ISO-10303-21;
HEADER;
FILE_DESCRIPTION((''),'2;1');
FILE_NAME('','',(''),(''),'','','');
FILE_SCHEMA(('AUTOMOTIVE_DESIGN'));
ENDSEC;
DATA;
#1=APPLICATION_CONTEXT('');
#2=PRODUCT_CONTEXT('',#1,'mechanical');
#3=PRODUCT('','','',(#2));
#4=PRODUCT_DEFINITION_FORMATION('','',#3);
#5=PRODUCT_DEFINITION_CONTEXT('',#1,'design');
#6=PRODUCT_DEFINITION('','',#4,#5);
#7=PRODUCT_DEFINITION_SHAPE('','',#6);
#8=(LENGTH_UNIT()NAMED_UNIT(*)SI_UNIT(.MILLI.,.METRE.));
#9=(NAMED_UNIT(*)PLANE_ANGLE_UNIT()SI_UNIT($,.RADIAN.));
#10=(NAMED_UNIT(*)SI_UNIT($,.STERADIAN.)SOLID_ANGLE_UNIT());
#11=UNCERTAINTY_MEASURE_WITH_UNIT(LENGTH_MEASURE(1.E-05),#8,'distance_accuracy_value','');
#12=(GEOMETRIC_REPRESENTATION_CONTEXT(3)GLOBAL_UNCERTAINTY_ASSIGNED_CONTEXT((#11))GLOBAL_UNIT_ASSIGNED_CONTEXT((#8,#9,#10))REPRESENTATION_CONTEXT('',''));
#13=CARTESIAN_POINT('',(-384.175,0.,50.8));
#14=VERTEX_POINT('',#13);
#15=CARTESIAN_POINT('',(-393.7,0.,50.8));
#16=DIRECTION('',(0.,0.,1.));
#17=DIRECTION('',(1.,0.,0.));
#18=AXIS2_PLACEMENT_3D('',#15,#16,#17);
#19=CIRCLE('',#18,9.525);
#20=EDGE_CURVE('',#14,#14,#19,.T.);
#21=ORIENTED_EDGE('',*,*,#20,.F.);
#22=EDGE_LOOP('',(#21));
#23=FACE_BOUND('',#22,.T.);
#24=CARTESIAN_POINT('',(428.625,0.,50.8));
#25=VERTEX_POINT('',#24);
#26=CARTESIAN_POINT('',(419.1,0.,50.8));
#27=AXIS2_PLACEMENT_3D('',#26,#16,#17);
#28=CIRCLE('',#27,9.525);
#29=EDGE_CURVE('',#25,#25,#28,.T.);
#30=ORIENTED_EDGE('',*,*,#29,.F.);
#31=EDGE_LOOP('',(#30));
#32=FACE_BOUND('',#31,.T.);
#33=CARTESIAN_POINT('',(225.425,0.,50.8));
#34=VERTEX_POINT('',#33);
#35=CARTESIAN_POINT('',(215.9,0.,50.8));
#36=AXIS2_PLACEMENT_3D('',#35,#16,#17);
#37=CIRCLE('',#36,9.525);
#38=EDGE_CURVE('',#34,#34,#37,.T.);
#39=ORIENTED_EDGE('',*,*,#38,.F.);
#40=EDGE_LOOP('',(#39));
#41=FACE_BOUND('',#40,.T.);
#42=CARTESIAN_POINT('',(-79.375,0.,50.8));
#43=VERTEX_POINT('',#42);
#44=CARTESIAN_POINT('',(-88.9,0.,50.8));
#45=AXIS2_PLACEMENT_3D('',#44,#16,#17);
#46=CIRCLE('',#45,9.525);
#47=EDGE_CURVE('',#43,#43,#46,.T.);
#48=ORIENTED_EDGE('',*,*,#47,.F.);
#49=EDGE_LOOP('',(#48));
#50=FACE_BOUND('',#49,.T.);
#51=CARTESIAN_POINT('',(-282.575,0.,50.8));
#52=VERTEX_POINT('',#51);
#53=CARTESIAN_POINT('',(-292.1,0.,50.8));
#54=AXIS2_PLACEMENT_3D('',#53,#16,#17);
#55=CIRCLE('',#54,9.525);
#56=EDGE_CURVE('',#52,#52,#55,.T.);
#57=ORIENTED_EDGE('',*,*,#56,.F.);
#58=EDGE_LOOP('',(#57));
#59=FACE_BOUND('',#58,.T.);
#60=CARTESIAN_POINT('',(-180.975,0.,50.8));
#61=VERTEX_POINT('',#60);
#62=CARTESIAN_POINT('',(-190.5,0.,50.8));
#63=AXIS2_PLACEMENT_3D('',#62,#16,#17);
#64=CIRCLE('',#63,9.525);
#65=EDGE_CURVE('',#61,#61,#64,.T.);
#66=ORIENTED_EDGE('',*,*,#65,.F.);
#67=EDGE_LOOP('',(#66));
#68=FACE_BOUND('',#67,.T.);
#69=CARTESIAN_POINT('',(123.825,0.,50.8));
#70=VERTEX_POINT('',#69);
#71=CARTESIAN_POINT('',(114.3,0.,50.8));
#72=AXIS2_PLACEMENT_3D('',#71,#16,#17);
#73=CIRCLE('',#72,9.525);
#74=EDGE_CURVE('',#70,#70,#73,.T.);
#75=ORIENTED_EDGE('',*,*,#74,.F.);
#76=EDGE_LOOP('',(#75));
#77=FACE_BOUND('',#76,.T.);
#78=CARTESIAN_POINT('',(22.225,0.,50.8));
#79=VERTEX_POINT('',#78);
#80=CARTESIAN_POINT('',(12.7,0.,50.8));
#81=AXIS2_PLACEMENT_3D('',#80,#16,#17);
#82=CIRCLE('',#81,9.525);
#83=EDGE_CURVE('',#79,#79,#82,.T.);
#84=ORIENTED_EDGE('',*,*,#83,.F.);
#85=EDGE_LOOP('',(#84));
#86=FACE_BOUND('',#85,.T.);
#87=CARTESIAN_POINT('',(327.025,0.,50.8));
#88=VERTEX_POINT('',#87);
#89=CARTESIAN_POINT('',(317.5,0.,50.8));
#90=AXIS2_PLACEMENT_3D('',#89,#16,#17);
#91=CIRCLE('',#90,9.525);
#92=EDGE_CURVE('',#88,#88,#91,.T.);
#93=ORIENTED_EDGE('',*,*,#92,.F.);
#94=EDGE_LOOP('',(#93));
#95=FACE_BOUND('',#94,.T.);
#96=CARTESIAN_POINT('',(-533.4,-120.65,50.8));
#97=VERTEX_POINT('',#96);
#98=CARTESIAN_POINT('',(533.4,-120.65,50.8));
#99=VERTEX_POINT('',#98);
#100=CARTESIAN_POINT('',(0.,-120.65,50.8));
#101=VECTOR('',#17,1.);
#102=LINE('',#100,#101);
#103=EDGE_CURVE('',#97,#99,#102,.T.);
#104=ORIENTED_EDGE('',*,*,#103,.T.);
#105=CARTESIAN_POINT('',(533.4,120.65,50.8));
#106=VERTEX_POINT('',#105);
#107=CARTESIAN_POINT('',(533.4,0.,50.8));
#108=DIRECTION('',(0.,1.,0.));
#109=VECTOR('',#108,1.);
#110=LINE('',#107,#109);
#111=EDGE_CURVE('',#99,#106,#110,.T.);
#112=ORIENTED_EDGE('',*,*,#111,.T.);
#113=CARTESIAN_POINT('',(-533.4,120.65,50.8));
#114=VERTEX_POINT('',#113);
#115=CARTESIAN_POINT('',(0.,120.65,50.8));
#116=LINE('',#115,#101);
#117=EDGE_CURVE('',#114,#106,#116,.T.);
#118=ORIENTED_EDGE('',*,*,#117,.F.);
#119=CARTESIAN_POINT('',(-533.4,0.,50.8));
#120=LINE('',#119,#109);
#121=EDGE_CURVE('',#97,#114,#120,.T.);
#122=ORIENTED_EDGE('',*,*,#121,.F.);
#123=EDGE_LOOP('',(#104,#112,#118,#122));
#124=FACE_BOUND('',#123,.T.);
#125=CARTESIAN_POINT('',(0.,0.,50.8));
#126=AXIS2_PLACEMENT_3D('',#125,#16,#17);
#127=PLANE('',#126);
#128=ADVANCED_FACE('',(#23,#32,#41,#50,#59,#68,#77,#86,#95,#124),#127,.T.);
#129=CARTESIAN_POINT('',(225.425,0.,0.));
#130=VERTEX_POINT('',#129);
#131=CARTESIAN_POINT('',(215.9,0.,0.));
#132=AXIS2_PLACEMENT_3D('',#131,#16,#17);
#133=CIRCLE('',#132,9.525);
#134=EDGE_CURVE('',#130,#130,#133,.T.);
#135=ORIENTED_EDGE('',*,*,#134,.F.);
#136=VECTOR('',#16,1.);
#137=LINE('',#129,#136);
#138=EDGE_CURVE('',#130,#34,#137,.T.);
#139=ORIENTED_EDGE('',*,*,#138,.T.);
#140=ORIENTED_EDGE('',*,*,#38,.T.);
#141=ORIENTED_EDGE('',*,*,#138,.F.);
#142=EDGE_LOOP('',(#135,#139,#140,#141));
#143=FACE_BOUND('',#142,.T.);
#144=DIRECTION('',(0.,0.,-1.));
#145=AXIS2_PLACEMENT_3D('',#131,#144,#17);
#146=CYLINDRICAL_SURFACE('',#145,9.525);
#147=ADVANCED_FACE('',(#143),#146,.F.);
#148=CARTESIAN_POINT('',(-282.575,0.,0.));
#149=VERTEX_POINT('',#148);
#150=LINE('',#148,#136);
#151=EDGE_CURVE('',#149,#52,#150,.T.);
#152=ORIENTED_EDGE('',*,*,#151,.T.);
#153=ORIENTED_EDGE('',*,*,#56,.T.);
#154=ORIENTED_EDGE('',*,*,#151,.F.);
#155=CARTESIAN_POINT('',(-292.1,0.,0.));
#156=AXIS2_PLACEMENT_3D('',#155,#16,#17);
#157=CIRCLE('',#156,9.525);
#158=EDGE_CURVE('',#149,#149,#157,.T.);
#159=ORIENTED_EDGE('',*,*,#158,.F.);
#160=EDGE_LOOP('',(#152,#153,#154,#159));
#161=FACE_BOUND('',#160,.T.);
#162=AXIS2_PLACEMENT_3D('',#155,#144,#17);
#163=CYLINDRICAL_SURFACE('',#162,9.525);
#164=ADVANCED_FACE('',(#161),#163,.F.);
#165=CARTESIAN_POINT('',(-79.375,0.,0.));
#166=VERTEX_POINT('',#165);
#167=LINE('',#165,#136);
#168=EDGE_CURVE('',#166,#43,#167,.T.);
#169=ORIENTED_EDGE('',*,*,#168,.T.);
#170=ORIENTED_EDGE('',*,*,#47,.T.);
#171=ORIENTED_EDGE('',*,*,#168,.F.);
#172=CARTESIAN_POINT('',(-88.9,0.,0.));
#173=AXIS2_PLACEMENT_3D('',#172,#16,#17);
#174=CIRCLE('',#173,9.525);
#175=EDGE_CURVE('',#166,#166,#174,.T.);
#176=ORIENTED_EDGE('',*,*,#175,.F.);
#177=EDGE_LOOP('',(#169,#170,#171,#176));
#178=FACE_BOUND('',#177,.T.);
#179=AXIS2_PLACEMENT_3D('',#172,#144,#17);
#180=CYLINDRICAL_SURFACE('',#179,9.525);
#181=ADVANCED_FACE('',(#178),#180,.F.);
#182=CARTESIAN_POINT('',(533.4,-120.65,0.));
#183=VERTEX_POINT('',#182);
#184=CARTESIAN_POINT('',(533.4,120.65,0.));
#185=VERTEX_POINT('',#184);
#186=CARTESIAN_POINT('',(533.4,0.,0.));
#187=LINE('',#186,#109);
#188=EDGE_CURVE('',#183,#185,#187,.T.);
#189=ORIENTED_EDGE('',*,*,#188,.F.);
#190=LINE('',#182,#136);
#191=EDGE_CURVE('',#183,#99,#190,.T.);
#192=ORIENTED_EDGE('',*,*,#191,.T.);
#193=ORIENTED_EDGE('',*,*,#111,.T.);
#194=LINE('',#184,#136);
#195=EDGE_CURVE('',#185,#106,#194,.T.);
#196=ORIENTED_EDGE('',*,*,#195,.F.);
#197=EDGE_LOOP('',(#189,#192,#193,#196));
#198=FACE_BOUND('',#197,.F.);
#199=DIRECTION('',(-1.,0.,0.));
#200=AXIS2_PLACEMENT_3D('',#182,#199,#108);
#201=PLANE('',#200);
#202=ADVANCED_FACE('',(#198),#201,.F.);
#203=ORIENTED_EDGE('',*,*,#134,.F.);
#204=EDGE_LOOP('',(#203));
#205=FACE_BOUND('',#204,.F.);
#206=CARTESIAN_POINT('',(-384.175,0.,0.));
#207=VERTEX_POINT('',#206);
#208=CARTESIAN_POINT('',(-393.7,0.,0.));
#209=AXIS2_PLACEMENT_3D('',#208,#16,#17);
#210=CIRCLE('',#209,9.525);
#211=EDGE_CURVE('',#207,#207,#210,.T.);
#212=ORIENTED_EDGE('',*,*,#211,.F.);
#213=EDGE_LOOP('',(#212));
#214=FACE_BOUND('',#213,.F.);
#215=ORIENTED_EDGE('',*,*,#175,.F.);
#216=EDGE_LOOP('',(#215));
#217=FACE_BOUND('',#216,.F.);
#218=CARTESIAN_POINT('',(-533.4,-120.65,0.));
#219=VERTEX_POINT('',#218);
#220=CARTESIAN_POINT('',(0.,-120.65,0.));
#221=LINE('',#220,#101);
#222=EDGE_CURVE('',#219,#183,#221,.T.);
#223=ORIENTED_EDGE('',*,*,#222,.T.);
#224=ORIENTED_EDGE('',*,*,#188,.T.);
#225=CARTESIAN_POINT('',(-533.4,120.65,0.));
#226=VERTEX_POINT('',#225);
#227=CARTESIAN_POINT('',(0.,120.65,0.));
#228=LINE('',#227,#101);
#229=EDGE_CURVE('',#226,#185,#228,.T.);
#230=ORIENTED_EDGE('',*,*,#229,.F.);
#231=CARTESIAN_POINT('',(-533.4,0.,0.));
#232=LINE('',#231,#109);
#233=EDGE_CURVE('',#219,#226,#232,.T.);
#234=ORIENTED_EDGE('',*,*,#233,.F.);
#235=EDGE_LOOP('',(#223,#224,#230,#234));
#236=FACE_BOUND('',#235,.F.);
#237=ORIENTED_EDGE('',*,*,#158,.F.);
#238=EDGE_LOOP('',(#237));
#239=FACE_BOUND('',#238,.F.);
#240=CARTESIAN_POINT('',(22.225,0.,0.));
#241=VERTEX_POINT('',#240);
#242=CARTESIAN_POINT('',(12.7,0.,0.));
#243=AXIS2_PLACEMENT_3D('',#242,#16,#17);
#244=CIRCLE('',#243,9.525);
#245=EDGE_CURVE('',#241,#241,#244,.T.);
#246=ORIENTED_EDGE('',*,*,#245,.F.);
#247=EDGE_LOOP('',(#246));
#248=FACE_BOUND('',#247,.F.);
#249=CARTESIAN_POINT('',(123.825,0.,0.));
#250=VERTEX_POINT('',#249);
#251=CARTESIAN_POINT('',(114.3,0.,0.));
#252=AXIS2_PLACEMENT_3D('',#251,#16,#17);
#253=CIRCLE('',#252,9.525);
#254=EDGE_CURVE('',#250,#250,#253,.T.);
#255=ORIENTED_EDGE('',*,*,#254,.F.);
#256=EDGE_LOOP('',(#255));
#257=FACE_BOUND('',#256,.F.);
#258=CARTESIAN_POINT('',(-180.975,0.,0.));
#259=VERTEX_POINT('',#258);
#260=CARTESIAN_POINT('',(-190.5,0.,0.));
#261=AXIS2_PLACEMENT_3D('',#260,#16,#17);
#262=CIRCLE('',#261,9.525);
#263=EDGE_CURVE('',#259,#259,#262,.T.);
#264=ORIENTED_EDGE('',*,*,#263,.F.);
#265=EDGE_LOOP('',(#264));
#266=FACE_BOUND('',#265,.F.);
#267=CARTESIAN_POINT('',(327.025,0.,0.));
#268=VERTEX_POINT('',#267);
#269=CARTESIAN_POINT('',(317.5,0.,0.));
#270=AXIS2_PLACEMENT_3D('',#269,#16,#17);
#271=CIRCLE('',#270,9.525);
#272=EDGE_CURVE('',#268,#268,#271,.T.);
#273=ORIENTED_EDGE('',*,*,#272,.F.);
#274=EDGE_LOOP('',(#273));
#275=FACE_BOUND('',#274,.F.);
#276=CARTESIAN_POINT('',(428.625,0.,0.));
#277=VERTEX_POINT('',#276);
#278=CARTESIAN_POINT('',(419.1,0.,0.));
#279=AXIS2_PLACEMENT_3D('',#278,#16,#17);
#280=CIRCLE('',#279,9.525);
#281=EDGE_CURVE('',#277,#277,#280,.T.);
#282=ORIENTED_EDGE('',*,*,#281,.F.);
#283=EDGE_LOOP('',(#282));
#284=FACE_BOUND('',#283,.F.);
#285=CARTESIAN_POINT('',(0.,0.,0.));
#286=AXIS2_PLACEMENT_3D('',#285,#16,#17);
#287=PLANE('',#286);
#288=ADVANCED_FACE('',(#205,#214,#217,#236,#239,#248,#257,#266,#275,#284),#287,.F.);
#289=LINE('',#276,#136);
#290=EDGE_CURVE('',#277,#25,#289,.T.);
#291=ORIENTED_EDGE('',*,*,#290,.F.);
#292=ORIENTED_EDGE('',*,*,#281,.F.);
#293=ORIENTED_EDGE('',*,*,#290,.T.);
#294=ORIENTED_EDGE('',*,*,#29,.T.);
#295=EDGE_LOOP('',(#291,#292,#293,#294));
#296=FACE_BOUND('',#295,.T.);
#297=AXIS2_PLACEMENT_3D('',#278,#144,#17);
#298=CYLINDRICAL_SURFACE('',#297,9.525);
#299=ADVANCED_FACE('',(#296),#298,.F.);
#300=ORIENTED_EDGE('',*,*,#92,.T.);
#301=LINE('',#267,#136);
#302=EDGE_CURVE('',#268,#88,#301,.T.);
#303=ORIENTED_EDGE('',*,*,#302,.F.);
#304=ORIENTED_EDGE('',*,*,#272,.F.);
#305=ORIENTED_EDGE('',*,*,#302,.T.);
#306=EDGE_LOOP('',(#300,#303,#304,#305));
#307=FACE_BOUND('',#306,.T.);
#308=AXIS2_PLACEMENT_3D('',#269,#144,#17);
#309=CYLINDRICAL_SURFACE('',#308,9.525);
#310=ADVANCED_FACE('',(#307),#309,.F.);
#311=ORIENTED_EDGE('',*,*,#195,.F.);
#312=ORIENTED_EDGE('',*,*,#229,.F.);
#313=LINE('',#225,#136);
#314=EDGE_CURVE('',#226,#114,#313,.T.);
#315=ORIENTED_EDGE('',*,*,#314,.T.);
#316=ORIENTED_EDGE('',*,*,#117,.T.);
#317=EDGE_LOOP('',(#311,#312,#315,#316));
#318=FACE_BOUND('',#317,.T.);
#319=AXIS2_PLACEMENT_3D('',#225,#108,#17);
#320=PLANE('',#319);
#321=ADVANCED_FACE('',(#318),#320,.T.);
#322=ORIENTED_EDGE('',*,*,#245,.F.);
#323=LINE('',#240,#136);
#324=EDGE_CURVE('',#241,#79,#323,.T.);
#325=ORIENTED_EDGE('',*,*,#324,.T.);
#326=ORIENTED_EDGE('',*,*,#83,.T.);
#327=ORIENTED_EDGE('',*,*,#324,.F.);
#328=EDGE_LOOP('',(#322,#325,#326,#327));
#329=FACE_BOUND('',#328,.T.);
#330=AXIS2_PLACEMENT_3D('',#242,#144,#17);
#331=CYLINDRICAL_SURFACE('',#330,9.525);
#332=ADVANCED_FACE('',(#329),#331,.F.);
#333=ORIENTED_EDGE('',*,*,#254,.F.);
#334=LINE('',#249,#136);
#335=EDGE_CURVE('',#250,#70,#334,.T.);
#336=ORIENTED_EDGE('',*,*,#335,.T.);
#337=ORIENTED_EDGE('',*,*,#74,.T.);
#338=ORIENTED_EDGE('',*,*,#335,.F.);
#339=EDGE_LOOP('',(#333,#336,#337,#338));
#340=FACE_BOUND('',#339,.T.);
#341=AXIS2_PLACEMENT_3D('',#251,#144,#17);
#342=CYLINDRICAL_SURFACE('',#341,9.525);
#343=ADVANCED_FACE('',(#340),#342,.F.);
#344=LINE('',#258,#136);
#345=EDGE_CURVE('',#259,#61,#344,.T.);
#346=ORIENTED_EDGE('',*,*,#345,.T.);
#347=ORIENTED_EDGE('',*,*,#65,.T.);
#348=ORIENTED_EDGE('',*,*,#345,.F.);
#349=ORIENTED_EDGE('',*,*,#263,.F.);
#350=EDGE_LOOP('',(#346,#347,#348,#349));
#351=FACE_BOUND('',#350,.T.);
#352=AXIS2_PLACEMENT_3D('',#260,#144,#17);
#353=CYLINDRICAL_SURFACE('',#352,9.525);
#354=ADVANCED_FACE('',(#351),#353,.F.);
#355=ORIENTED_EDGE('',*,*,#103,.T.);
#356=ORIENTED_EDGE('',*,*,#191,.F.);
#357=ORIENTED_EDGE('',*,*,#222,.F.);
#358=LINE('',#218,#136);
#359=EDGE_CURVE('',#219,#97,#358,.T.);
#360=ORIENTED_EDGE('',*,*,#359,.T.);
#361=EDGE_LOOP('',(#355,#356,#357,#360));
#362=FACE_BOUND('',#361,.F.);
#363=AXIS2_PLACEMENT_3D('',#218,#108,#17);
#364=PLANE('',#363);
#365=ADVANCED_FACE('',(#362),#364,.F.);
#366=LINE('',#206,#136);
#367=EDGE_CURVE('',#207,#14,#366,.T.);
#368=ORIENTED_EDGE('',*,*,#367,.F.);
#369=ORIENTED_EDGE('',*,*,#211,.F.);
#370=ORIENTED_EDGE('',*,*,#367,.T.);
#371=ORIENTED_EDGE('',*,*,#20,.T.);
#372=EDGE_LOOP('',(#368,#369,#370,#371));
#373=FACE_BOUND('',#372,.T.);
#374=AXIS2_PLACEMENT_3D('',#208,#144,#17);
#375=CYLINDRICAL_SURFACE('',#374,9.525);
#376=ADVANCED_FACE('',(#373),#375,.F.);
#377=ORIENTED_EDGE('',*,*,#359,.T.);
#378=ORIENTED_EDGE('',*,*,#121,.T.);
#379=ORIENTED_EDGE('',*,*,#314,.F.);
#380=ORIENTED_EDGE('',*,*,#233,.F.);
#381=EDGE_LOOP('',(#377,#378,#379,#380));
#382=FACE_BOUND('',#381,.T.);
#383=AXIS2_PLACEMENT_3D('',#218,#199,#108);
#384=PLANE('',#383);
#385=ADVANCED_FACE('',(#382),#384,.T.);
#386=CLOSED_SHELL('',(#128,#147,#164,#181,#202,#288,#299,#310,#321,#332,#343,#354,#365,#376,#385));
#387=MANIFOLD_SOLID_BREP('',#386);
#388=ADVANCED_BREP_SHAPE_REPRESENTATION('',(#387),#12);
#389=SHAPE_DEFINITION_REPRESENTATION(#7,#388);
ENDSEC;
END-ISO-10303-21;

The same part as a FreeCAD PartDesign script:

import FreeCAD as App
import Part
import Sketcher
Q = App.Units.Quantity

doc = App.newDocument("Part")
params = doc.addObject("Spreadsheet::Sheet", "Params")
for row, (alias, value) in enumerate([
    ("sketch1_diameter", "0.75 in"),
    ("sketch1_width", "42 in"),
    ("sketch1_height", "9.5 in"),
    ("pad1_length", "2 in"),
], start=1):
    params.set(f"A{row}", alias)
    params.set(f"B{row}", "=" + value)
    params.setAlias(f"B{row}", alias)

body = doc.addObject("PartDesign::Body", "Body")

sketch1 = body.newObject("Sketcher::SketchObject", "Sketch")
sketch1.AttachmentSupport = (doc.getObject("XY_Plane"), [""])
sketch1.MapMode = "FlatFace"
sketch1.addGeometry(Part.LineSegment(App.Vector(-533, 121, 0), App.Vector(-533, -121, 0)), False)
sketch1.addGeometry(Part.LineSegment(App.Vector(-533, -121, 0), App.Vector(533, -121, 0)), False)
sketch1.addGeometry(Part.LineSegment(App.Vector(533, -121, 0), App.Vector(533, 121, 0)), False)
sketch1.addGeometry(Part.LineSegment(App.Vector(533, 121, 0), App.Vector(-533, 121, 0)), False)
sketch1.addGeometry(Part.Circle(App.Vector(-394, 0, 0), App.Vector(0, 0, 1), 10), False)
sketch1.addGeometry(Part.Circle(App.Vector(-292, 0, 0), App.Vector(0, 0, 1), 10), False)
sketch1.addGeometry(Part.Circle(App.Vector(-190, 0, 0), App.Vector(0, 0, 1), 10), False)
sketch1.addGeometry(Part.Circle(App.Vector(-89, 0, 0), App.Vector(0, 0, 1), 10), False)
sketch1.addGeometry(Part.Circle(App.Vector(13, 0, 0), App.Vector(0, 0, 1), 10), False)
sketch1.addGeometry(Part.Circle(App.Vector(114, 0, 0), App.Vector(0, 0, 1), 10), False)
sketch1.addGeometry(Part.Circle(App.Vector(216, 0, 0), App.Vector(0, 0, 1), 10), False)
sketch1.addGeometry(Part.Circle(App.Vector(318, 0, 0), App.Vector(0, 0, 1), 10), False)
sketch1.addGeometry(Part.Circle(App.Vector(419, 0, 0), App.Vector(0, 0, 1), 10), False)
sketch1.addConstraint(Sketcher.Constraint("Coincident", 0, 2, 1, 1))
sketch1.addConstraint(Sketcher.Constraint("Coincident", 1, 2, 2, 1))
sketch1.addConstraint(Sketcher.Constraint("Coincident", 2, 2, 3, 1))
sketch1.addConstraint(Sketcher.Constraint("Coincident", 3, 2, 0, 1))
sketch1.addConstraint(Sketcher.Constraint("Vertical", 0))
sketch1.addConstraint(Sketcher.Constraint("Horizontal", 1))
sketch1.addConstraint(Sketcher.Constraint("Vertical", 2))
sketch1.addConstraint(Sketcher.Constraint("Horizontal", 3))
sketch1.addConstraint(Sketcher.Constraint("Equal", 4, 5))
sketch1.addConstraint(Sketcher.Constraint("Equal", 5, 6))
sketch1.addConstraint(Sketcher.Constraint("Equal", 6, 7))
sketch1.addConstraint(Sketcher.Constraint("Equal", 7, 8))
sketch1.addConstraint(Sketcher.Constraint("Equal", 8, 9))
sketch1.addConstraint(Sketcher.Constraint("Equal", 9, 10))
sketch1.addConstraint(Sketcher.Constraint("Equal", 10, 11))
sketch1.addConstraint(Sketcher.Constraint("Equal", 11, 12))
sketch1.addConstraint(Sketcher.Constraint("Symmetric", 0, 2, 2, 2, -1, 1))
sketch1.addConstraint(Sketcher.Constraint("PointOnObject", 4, 3, -1))
sketch1.addConstraint(Sketcher.Constraint("PointOnObject", 5, 3, -1))
sketch1.addConstraint(Sketcher.Constraint("PointOnObject", 6, 3, -1))
sketch1.addConstraint(Sketcher.Constraint("PointOnObject", 7, 3, -1))
sketch1.addConstraint(Sketcher.Constraint("PointOnObject", 8, 3, -1))
sketch1.addConstraint(Sketcher.Constraint("PointOnObject", 9, 3, -1))
sketch1.addConstraint(Sketcher.Constraint("PointOnObject", 10, 3, -1))
sketch1.addConstraint(Sketcher.Constraint("PointOnObject", 11, 3, -1))
sketch1.addConstraint(Sketcher.Constraint("PointOnObject", 12, 3, -1))
sketch1.addConstraint(Sketcher.Constraint("Diameter", 4, Q("0.75 in")))
sketch1.addConstraint(Sketcher.Constraint("DistanceX", 1, 1, 1, 2, Q("42 in")))
sketch1.addConstraint(Sketcher.Constraint("DistanceY", 0, 2, 0, 1, Q("9.5 in")))
sketch1.addConstraint(Sketcher.Constraint("DistanceX", 4, 3, 5, 3, Q("4 in")))
sketch1.addConstraint(Sketcher.Constraint("DistanceX", 5, 3, 6, 3, Q("4 in")))
sketch1.addConstraint(Sketcher.Constraint("DistanceX", 6, 3, 7, 3, Q("4 in")))
sketch1.addConstraint(Sketcher.Constraint("DistanceX", 7, 3, 8, 3, Q("4 in")))
sketch1.addConstraint(Sketcher.Constraint("DistanceX", 8, 3, 9, 3, Q("4 in")))
sketch1.addConstraint(Sketcher.Constraint("DistanceX", 9, 3, 10, 3, Q("4 in")))
sketch1.addConstraint(Sketcher.Constraint("DistanceX", 10, 3, 11, 3, Q("4 in")))
sketch1.addConstraint(Sketcher.Constraint("DistanceX", 11, 3, 12, 3, Q("4 in")))
sketch1.addConstraint(Sketcher.Constraint("DistanceX", 4, 3, -1, 1, Q("15.5 in")))
sketch1.setExpression("Constraints[26]", "Params.sketch1_diameter")
sketch1.setExpression("Constraints[27]", "Params.sketch1_width")
sketch1.setExpression("Constraints[28]", "Params.sketch1_height")
pad1 = body.newObject("PartDesign::Pad", "Pad")
pad1.Profile = sketch1
pad1.setExpression("Length", "Params.pad1_length")

doc.recompute()
